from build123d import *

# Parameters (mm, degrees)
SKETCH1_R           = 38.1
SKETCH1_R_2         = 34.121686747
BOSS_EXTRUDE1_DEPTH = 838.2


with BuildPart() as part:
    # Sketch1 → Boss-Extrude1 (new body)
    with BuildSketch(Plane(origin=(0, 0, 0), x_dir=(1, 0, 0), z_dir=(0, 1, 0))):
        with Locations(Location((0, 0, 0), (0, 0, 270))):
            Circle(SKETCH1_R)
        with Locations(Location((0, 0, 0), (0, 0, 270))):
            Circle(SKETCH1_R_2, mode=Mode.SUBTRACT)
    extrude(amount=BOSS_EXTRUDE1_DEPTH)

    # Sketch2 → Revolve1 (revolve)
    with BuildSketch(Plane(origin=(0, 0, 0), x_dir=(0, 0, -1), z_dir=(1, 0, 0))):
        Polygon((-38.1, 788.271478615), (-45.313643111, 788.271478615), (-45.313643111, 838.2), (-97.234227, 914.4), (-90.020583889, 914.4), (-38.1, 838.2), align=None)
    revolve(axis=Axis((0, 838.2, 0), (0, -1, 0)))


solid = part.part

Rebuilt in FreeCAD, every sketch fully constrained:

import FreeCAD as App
import Part
import Sketcher

V = App.Vector
Q = App.Units.Quantity


def add_polygon(sketch, points):
    """Adds a closed chain of lines whose ends are joined by coincident constraints."""
    first, n = sketch.GeometryCount, len(points)
    for a, b in zip(points, points[1:] + points[:1]):
        sketch.addGeometry(Part.LineSegment(App.Vector(*a, 0), App.Vector(*b, 0)), False)
    for i in range(n):
        sketch.addConstraint(Sketcher.Constraint("Coincident", first + i, 2, first + (i + 1) % n, 1))

doc = App.newDocument("Part")
body = doc.addObject("PartDesign::Body", "Body")

sketch1 = doc.addObject("Sketcher::SketchObject", "Sketch")
body.addObject(sketch1)
sketch1.AttachmentSupport = (doc.XZ_Plane, [""])
sketch1.MapMode = "FlatFace"
sketch1.addGeometry([
    Part.Circle(V(0, 0, 0), V(0, 0, 1), 38),
    Part.Circle(V(0, 0, 0), V(0, 0, 1), 34),
], False)
sketch1.addConstraint([
    Sketcher.Constraint("Coincident", 0, 3, -1, 1),
    Sketcher.Constraint("Coincident", 1, 3, -1, 1),
    Sketcher.Constraint("Diameter", 0, Q("3 in")),
    Sketcher.Constraint("Diameter", 1, 68.243373),
])
pad1 = doc.addObject("PartDesign::Pad", "Pad")
body.addObject(pad1)
pad1.Profile = sketch1
pad1.Length = Q("33 in")
pad1.Reversed = True

sketch2 = doc.addObject("Sketcher::SketchObject", "Sketch001")
body.addObject(sketch2)
sketch2.AttachmentSupport = (doc.YZ_Plane, [""])
sketch2.MapMode = "FlatFace"
add_polygon(sketch2, [(788, 45), (788, 38), (838, 38), (914, 90), (914, 97), (838, 45)])
sketch2.addConstraint([
    Sketcher.Constraint("Vertical", 0),
    Sketcher.Constraint("Horizontal", 1),
    Sketcher.Constraint("Vertical", 3),
    Sketcher.Constraint("Horizontal", 5),
    Sketcher.Constraint("Parallel", 2, 4),
    Sketcher.Constraint("Vertical", 1, 2, 4, 2),
    Sketcher.Constraint("DistanceX", -1, 1, 1, 2, Q("33 in")),
    Sketcher.Constraint("DistanceX", -1, 1, 2, 2, Q("36 in")),
    Sketcher.Constraint("DistanceY", -1, 1, 0, 2, Q("1.5 in")),
    Sketcher.Constraint("DistanceX", 1, 1, 1, 2, 49.928521),
    Sketcher.Constraint("DistanceY", 0, 2, 0, 1, 7.213643),
    Sketcher.Constraint("DistanceY", 4, 2, 2, 2, 44.706941),
])
revolution = doc.addObject("PartDesign::Revolution", "Revolution")
body.addObject(revolution)
revolution.Profile = sketch2
revolution.ReferenceAxis = (sketch2, ["H_Axis"])
revolution.Angle = 360

doc.recompute()
